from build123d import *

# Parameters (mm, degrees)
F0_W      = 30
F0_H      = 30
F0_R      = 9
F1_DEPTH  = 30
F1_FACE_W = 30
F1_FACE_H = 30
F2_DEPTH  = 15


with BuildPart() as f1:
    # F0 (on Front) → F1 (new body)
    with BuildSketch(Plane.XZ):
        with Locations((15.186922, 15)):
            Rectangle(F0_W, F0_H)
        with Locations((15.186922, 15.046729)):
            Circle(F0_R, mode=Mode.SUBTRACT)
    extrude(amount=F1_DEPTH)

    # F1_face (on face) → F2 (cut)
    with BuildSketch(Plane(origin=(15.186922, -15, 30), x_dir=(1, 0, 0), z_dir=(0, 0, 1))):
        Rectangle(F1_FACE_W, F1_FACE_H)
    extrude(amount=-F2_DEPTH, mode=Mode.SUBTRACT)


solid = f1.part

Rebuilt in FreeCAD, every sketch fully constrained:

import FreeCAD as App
import Part
import Sketcher

V = App.Vector
Q = App.Units.Quantity


def add_polygon(sketch, points):
    """Adds a closed chain of lines whose ends are joined by coincident constraints."""
    first, n = sketch.GeometryCount, len(points)
    for a, b in zip(points, points[1:] + points[:1]):
        sketch.addGeometry(Part.LineSegment(App.Vector(*a, 0), App.Vector(*b, 0)), False)
    for i in range(n):
        sketch.addConstraint(Sketcher.Constraint("Coincident", first + i, 2, first + (i + 1) % n, 1))

doc = App.newDocument("Part")
params = doc.addObject("Spreadsheet::Sheet", "Params")
for row, (alias, value) in enumerate([
    ("sketch1_diameter", "18 mm"),
    ("sketch1_width", "30 mm"),
    ("pad1_length", "30 mm"),
    ("sketch2_width", "30 mm"),
    ("pocket1_length", "15 mm"),
], start=1):
    params.set(f"A{row}", alias)
    params.set(f"B{row}", "=" + value)
    params.setAlias(f"B{row}", alias)

body = doc.addObject("PartDesign::Body", "Body")

# Sketch on XZ plane
sketch1 = body.newObject("Sketcher::SketchObject", "Sketch")
sketch1.AttachmentSupport = (doc.getObject("XZ_Plane"), [""])
sketch1.MapMode = "FlatFace"
add_polygon(sketch1, [(0.186922, 30), (0.186922, 0), (30.186922, 0), (30.186922, 30)])  # lines 0-3
sketch1.addGeometry(Part.Circle(V(15.186922, 15.046729, 0), V(0, 0, 1), 9), False)  # 4
sketch1.addConstraint([
    Sketcher.Constraint("Vertical", 0),
    Sketcher.Constraint("Horizontal", 1),
    Sketcher.Constraint("Vertical", 2),
    Sketcher.Constraint("Horizontal", 3),
    Sketcher.Constraint("PointOnObject", 0, 2, -1),
    Sketcher.Constraint("Equal", 3, 0),
    Sketcher.Constraint("Diameter", 4, Q("18 mm")),
    Sketcher.Constraint("DistanceX", 1, 1, 1, 2, Q("30 mm")),
    Sketcher.Constraint("DistanceX", 0, 2, 4, 3, Q("15 mm")),
    Sketcher.Constraint("DistanceX", -1, 1, 4, 3, Q("15.186922 mm")),
    Sketcher.Constraint("DistanceY", -1, 1, 4, 3, Q("15.046729 mm")),
])
sketch1.setExpression("Constraints[10]", "Params.sketch1_diameter")
sketch1.setExpression("Constraints[11]", "Params.sketch1_width")
pad1 = body.newObject("PartDesign::Pad", "Pad")
pad1.Profile = sketch1
pad1.setExpression("Length", "Params.pad1_length")

# Sketch on XY plane
sketch2 = body.newObject("Sketcher::SketchObject", "Sketch001")
sketch2.AttachmentSupport = (doc.getObject("XY_Plane"), [""])
sketch2.MapMode = "FlatFace"
sketch2.AttachmentOffset = App.Placement(V(0, 0, 30), App.Rotation())
add_polygon(sketch2, [(0.186922, 0), (0.186922, -30), (30.186922, -30), (30.186922, 0)])  # lines 0-3
sketch2.addConstraint([
    Sketcher.Constraint("Vertical", 0),
    Sketcher.Constraint("Horizontal", 1),
    Sketcher.Constraint("Vertical", 2),
    Sketcher.Constraint("Horizontal", 3),
    Sketcher.Constraint("PointOnObject", 2, 2, -1),
    Sketcher.Constraint("Equal", 3, 0),
    Sketcher.Constraint("DistanceX", 1, 1, 1, 2, Q("30 mm")),
    Sketcher.Constraint("DistanceX", -1, 1, 1, 2, Q("30.186922 mm")),
])
sketch2.setExpression("Constraints[10]", "Params.sketch2_width")
pocket1 = body.newObject("PartDesign::Pocket", "Pocket")
pocket1.Profile = sketch2
pocket1.setExpression("Length", "Params.pocket1_length")

doc.recompute()
